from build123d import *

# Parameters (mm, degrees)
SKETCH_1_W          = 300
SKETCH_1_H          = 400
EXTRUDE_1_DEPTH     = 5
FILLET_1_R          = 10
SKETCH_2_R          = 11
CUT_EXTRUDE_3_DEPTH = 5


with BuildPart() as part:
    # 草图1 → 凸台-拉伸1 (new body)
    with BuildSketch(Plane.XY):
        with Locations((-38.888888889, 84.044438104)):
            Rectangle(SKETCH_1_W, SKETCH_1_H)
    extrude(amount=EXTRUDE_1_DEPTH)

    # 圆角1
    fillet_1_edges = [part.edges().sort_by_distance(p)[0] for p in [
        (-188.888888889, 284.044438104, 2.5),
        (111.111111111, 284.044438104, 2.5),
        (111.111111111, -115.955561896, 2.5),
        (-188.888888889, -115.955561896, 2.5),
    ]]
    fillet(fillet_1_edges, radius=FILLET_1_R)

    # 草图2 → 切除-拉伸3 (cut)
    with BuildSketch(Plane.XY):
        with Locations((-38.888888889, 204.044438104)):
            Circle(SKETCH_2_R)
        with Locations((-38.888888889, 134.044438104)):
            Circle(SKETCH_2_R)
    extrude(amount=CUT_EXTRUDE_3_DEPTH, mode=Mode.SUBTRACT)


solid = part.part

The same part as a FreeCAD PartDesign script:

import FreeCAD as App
import Part
import Sketcher
from FreeCAD import Vector
Q = App.Units.Quantity


def edges_at(feature, points):
    """Names of the edges that pass closest to the given points."""
    edges = feature.Shape.Edges
    near = lambda p: min(range(len(edges)), key=lambda i: edges[i].distToShape(Part.Vertex(*p))[0])
    return sorted({f"Edge{near(p) + 1}" for p in points})


def add_polygon(sketch, points):
    """Adds a closed chain of lines whose ends are joined by coincident constraints."""
    first, n = sketch.GeometryCount, len(points)
    for a, b in zip(points, points[1:] + points[:1]):
        sketch.addGeometry(Part.LineSegment(App.Vector(*a, 0), App.Vector(*b, 0)), False)
    for i in range(n):
        sketch.addConstraint(Sketcher.Constraint("Coincident", first + i, 2, first + (i + 1) % n, 1))

doc = App.newDocument("Part")
body = doc.addObject("PartDesign::Body", "Body")

# Sketch on XY plane
sketch1 = body.newObject("Sketcher::SketchObject", "Sketch")
sketch1.AttachmentSupport = (doc.getObject("XY_Plane"), [""])
sketch1.MapMode = "FlatFace"
add_polygon(sketch1, [(-189, 284), (-189, -116), (111, -116), (111, 284)])  # lines 0-3
sketch1.addConstraint([
    Sketcher.Constraint("Vertical", 0),
    Sketcher.Constraint("Horizontal", 1),
    Sketcher.Constraint("Vertical", 2),
    Sketcher.Constraint("Horizontal", 3),
    Sketcher.Constraint("DistanceX", 1, 1, 1, 2, Q("300 mm")),
    Sketcher.Constraint("DistanceY", 0, 2, 0, 1, Q("400 mm")),
    Sketcher.Constraint("DistanceX", 0, 2, -1, 1, Q("188.888889 mm")),
    Sketcher.Constraint("DistanceY", 0, 2, -1, 1, Q("115.955562 mm")),
])
pad1 = body.newObject("PartDesign::Pad", "Pad")
pad1.Profile = sketch1
pad1.Length = 5
doc.recompute()

fillet = body.newObject("PartDesign::Fillet", "Fillet")
fillet.Base = (pad1, edges_at(pad1, [
    (-188.889, 284.044, 2.5),
    (111.111, 284.044, 2.5),
    (111.111, -115.956, 2.5),
    (-188.889, -115.956, 2.5),
]))
fillet.Radius = 10

# Sketch on XY plane
sketch2 = body.newObject("Sketcher::SketchObject", "Sketch001")
sketch2.AttachmentSupport = (doc.getObject("XY_Plane"), [""])
sketch2.MapMode = "FlatFace"
sketch2.addGeometry([
    Part.Circle(Vector(-39, 204, 0), Vector(0, 0, 1), 11),
    Part.Circle(Vector(-39, 134, 0), Vector(0, 0, 1), 11),
], False)
sketch2.addConstraint([
    Sketcher.Constraint("Equal", 0, 1),
    Sketcher.Constraint("Vertical", 0, 3, 1, 3),
    Sketcher.Constraint("Diameter", 0, Q("22 mm")),
    Sketcher.Constraint("DistanceY", 1, 3, 0, 3, Q("70 mm")),
    Sketcher.Constraint("DistanceX", 0, 3, -1, 1, Q("38.888889 mm")),
    Sketcher.Constraint("DistanceY", -1, 1, 0, 3, Q("204.044438 mm")),
])
pocket1 = body.newObject("PartDesign::Pocket", "Pocket")
pocket1.Profile = sketch2
pocket1.Length = 5
pocket1.Reversed = True

doc.recompute()
